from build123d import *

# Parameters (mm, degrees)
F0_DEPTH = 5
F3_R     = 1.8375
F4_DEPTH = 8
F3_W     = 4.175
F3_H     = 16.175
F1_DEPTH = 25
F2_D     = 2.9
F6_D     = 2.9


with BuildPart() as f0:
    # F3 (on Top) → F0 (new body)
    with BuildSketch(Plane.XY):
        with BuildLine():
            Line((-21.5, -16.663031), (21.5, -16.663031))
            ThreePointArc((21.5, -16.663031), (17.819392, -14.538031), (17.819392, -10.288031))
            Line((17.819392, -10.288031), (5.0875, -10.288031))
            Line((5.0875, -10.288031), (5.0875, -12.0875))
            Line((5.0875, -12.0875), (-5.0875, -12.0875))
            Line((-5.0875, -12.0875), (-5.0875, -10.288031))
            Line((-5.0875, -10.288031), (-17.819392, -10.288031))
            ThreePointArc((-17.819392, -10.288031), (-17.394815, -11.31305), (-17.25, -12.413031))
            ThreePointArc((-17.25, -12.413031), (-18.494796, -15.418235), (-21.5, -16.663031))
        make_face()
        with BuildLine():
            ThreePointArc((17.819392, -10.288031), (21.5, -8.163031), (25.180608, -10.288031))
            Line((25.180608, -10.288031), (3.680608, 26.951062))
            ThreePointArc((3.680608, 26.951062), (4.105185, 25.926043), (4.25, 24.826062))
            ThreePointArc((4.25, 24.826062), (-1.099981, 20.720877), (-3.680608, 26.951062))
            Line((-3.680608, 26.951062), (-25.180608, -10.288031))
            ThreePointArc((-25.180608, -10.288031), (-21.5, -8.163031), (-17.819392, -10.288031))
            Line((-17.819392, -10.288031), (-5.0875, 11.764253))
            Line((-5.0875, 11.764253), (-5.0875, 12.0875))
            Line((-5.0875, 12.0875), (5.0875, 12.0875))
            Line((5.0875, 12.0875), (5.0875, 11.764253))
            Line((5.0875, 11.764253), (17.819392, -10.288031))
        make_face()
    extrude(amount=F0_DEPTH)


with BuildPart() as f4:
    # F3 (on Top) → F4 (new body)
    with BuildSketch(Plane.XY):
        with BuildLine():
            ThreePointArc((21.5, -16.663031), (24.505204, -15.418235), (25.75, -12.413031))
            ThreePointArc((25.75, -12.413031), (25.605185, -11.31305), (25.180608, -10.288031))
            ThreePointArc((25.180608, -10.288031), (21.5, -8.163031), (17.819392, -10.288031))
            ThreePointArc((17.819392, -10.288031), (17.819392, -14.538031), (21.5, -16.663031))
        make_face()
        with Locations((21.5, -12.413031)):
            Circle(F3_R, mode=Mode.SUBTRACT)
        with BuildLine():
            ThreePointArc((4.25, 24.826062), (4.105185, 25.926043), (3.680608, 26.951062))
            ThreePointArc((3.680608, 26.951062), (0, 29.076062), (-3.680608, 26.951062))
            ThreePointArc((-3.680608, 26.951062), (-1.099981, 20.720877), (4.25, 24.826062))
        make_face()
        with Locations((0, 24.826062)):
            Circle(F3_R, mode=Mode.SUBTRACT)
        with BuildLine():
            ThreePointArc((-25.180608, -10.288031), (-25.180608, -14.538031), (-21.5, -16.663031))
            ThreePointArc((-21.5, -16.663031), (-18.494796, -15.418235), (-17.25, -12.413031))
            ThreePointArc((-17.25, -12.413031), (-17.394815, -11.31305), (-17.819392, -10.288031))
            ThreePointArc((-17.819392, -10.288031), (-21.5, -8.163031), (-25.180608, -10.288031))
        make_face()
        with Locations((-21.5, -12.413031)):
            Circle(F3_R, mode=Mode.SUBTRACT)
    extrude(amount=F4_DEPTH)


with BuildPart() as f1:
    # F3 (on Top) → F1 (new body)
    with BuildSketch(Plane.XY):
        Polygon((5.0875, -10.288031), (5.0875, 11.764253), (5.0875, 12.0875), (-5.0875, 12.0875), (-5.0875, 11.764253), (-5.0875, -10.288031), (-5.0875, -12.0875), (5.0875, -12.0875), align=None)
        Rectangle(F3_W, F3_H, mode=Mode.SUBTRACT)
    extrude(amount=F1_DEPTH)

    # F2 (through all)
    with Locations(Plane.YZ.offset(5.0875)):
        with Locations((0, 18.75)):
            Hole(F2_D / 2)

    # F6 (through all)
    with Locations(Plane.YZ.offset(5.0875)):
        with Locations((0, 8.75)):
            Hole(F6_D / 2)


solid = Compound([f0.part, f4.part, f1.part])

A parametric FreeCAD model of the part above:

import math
import FreeCAD as App
import Part
import Sketcher

V = App.Vector
Q = App.Units.Quantity


def add_polygon(sketch, points):
    """Adds a closed chain of lines whose ends are joined by coincident constraints."""
    first, n = sketch.GeometryCount, len(points)
    for a, b in zip(points, points[1:] + points[:1]):
        sketch.addGeometry(Part.LineSegment(App.Vector(*a, 0), App.Vector(*b, 0)), False)
    for i in range(n):
        sketch.addConstraint(Sketcher.Constraint("Coincident", first + i, 2, first + (i + 1) % n, 1))

doc = App.newDocument("Part")
body = doc.addObject("PartDesign::Body", "Body")
body.AllowCompound = True

# Sketch on XY plane
sketch1 = body.newObject("Sketcher::SketchObject", "Sketch")
sketch1.AttachmentSupport = (doc.getObject("XY_Plane"), [""])
sketch1.MapMode = "FlatFace"
sketch1.addGeometry(Part.LineSegment(V(-21.5, -16.66, 0), V(21.5, -16.66, 0)), False)
sketch1.addGeometry(Part.ArcOfCircle(Part.Circle(V(21.5, -12.41, 0), V(0, 0, 1), 4.25), math.radians(150), math.radians(270)), False)
sketch1.addGeometry(Part.LineSegment(V(17.82, -10.29, 0), V(5.09, -10.29, 0)), False)
sketch1.addGeometry(Part.LineSegment(V(5.09, -10.29, 0), V(5.09, -12.09, 0)), False)
sketch1.addGeometry(Part.LineSegment(V(5.09, -12.09, 0), V(-5.09, -12.09, 0)), False)
sketch1.addGeometry(Part.LineSegment(V(-5.09, -12.09, 0), V(-5.09, -10.29, 0)), False)
sketch1.addGeometry(Part.LineSegment(V(-5.09, -10.29, 0), V(-17.82, -10.29, 0)), False)
sketch1.addGeometry(Part.ArcOfCircle(Part.Circle(V(-21.5, -12.41, 0), V(0, 0, 1), 4.25), math.radians(0), math.radians(30)), False)
sketch1.addGeometry(Part.ArcOfCircle(Part.Circle(V(-21.5, -12.41, 0), V(0, 0, 1), 4.25), math.radians(-90), math.radians(0)), False)
sketch1.addGeometry(Part.ArcOfCircle(Part.Circle(V(21.5, -12.41, 0), V(0, 0, 1), 4.25), math.radians(30), math.radians(150)), False)
sketch1.addGeometry(Part.LineSegment(V(25.18, -10.29, 0), V(3.68, 26.95, 0)), False)
sketch1.addGeometry(Part.ArcOfCircle(Part.Circle(V(0, 24.83, 0), V(0, 0, 1), 4.25), math.radians(0), math.radians(30)), False)
sketch1.addGeometry(Part.ArcOfCircle(Part.Circle(V(0, 24.83, 0), V(0, 0, 1), 4.25), math.radians(150), math.radians(360)), False)
sketch1.addGeometry(Part.LineSegment(V(-3.68, 26.95, 0), V(-25.18, -10.29, 0)), False)
sketch1.addGeometry(Part.ArcOfCircle(Part.Circle(V(-21.5, -12.41, 0), V(0, 0, 1), 4.25), math.radians(30), math.radians(150)), False)
sketch1.addGeometry(Part.LineSegment(V(-17.82, -10.29, 0), V(-5.09, 11.76, 0)), False)
sketch1.addGeometry(Part.LineSegment(V(-5.09, 11.76, 0), V(-5.09, 12.09, 0)), False)
sketch1.addGeometry(Part.LineSegment(V(-5.09, 12.09, 0), V(5.09, 12.09, 0)), False)
sketch1.addGeometry(Part.LineSegment(V(5.09, 12.09, 0), V(5.09, 11.76, 0)), False)
sketch1.addGeometry(Part.LineSegment(V(5.09, 11.76, 0), V(17.82, -10.29, 0)), False)
sketch1.addConstraint(Sketcher.Constraint("Tangent", 0, 2, 1, 2))
sketch1.addConstraint(Sketcher.Constraint("Coincident", 1, 1, 2, 1))
sketch1.addConstraint(Sketcher.Constraint("Coincident", 2, 2, 3, 1))
sketch1.addConstraint(Sketcher.Constraint("Coincident", 3, 2, 4, 1))
sketch1.addConstraint(Sketcher.Constraint("Coincident", 4, 2, 5, 1))
sketch1.addConstraint(Sketcher.Constraint("Coincident", 5, 2, 6, 1))
sketch1.addConstraint(Sketcher.Constraint("Coincident", 6, 2, 7, 2))
sketch1.addConstraint(Sketcher.Constraint("Tangent", 7, 1, 8, 2))
sketch1.addConstraint(Sketcher.Constraint("Tangent", 8, 1, 0, 1))
sketch1.addConstraint(Sketcher.Constraint("Tangent", 9, 1, 10, 1))
sketch1.addConstraint(Sketcher.Constraint("Tangent", 10, 2, 11, 2))
sketch1.addConstraint(Sketcher.Constraint("Tangent", 11, 1, 12, 2))
sketch1.addConstraint(Sketcher.Constraint("Tangent", 12, 1, 13, 1))
sketch1.addConstraint(Sketcher.Constraint("Tangent", 13, 2, 14, 2))
sketch1.addConstraint(Sketcher.Constraint("Coincident", 14, 1, 15, 1))
sketch1.addConstraint(Sketcher.Constraint("Coincident", 15, 2, 16, 1))
sketch1.addConstraint(Sketcher.Constraint("Coincident", 16, 2, 17, 1))
sketch1.addConstraint(Sketcher.Constraint("Coincident", 17, 2, 18, 1))
sketch1.addConstraint(Sketcher.Constraint("Coincident", 18, 2, 19, 1))
sketch1.addConstraint(Sketcher.Constraint("Coincident", 19, 2, 9, 2))
sketch1.addConstraint(Sketcher.Constraint("Horizontal", 0))
sketch1.addConstraint(Sketcher.Constraint("Horizontal", 2))
sketch1.addConstraint(Sketcher.Constraint("Vertical", 3))
sketch1.addConstraint(Sketcher.Constraint("Horizontal", 4))
sketch1.addConstraint(Sketcher.Constraint("Vertical", 5))
sketch1.addConstraint(Sketcher.Constraint("Horizontal", 6))
sketch1.addConstraint(Sketcher.Constraint("Vertical", 16))
sketch1.addConstraint(Sketcher.Constraint("Horizontal", 17))
sketch1.addConstraint(Sketcher.Constraint("Vertical", 18))
sketch1.addConstraint(Sketcher.Constraint("Coincident", 9, 3, 1, 3))
sketch1.addConstraint(Sketcher.Constraint("Coincident", 14, 3, 7, 3))
sketch1.addConstraint(Sketcher.Constraint("Coincident", 14, 1, 6, 2))
sketch1.addConstraint(Sketcher.Constraint("Coincident", 19, 2, 1, 1))
sketch1.addConstraint(Sketcher.Constraint("Equal", 1, 8))
sketch1.addConstraint(Sketcher.Constraint("Equal", 7, 11))
sketch1.addConstraint(Sketcher.Constraint("Equal", 9, 12))
sketch1.addConstraint(Sketcher.Constraint("Equal", 12, 14))
sketch1.addConstraint(Sketcher.Constraint("Symmetric", 3, 2, 16, 2, -1, 1))
sketch1.addConstraint(Sketcher.Constraint("Symmetric", 2, 2, 5, 2, -2))
sketch1.addConstraint(Sketcher.Constraint("Symmetric", 10, 2, 12, 1, -2))
sketch1.addConstraint(Sketcher.Constraint("Symmetric", 15, 2, 18, 2, -2))
sketch1.addConstraint(Sketcher.Constraint("Parallel", 13, 15))
sketch1.addConstraint(Sketcher.Constraint("Horizontal", 14, 3, 7, 1))
sketch1.addConstraint(Sketcher.Constraint("Horizontal", 6, 2, 9, 1))
sketch1.addConstraint(Sketcher.Constraint("Horizontal", 12, 3, 11, 1))
sketch1.addConstraint(Sketcher.Constraint("DistanceX", 0, 1, 0, 2, Q("43 mm")))
sketch1.addConstraint(Sketcher.Constraint("Angle", 10, Q("120 deg")))
sketch1.addConstraint(Sketcher.Constraint("Radius", 1, Q("4.25 mm")))
sketch1.addConstraint(Sketcher.Constraint("DistanceX", 4, 2, 4, 1, Q("10.175 mm")))
sketch1.addConstraint(Sketcher.Constraint("DistanceY", 3, 2, 3, 1, Q("1.799469 mm")))
sketch1.addConstraint(Sketcher.Constraint("DistanceY", 3, 2, -1, 1, Q("12.0875 mm")))
pad1 = body.newObject("PartDesign::Pad", "Pad")
pad1.Profile = sketch1
pad1.Length = 5
body2 = doc.addObject("PartDesign::Body", "Body001")
body2.AllowCompound = True

# Sketch on XY plane
sketch2 = body2.newObject("Sketcher::SketchObject", "Sketch001")
sketch2.AttachmentSupport = (doc.getObject("XY_Plane001"), [""])
sketch2.MapMode = "FlatFace"
sketch2.addGeometry(Part.ArcOfCircle(Part.Circle(V(21.5, -12.4, 0), V(0, 0, 1), 4.2), math.radians(-90), math.radians(0)), False)
sketch2.addGeometry(Part.ArcOfCircle(Part.Circle(V(21.5, -12.4, 0), V(0, 0, 1), 4.2), math.radians(0), math.radians(30)), False)
sketch2.addGeometry(Part.ArcOfCircle(Part.Circle(V(21.5, -12.4, 0), V(0, 0, 1), 4.3), math.radians(30), math.radians(150)), False)
sketch2.addGeometry(Part.ArcOfCircle(Part.Circle(V(21.5, -12.4, 0), V(0, 0, 1), 4.2), math.radians(150), math.radians(270)), False)
sketch2.addGeometry(Part.Circle(V(21.5, -12.4, 0), V(0, 0, 1), 1.8), False)
sketch2.addGeometry(Part.ArcOfCircle(Part.Circle(V(0, 24.8, 0), V(0, 0, 1), 4.2), math.radians(0), math.radians(30)), False)
sketch2.addGeometry(Part.ArcOfCircle(Part.Circle(V(0, 24.8, 0), V(0, 0, 1), 4.3), math.radians(30), math.radians(150)), False)
sketch2.addGeometry(Part.ArcOfCircle(Part.Circle(V(0, 24.8, 0), V(0, 0, 1), 4.3), math.radians(150), math.radians(360)), False)
sketch2.addGeometry(Part.Circle(V(0, 24.8, 0), V(0, 0, 1), 1.8), False)
sketch2.addGeometry(Part.ArcOfCircle(Part.Circle(V(-21.5, -12.4, 0), V(0, 0, 1), 4.2), math.radians(150), math.radians(270)), False)
sketch2.addGeometry(Part.ArcOfCircle(Part.Circle(V(-21.5, -12.4, 0), V(0, 0, 1), 4.2), math.radians(-90), math.radians(0)), False)
sketch2.addGeometry(Part.ArcOfCircle(Part.Circle(V(-21.5, -12.4, 0), V(0, 0, 1), 4.2), math.radians(0), math.radians(30)), False)
sketch2.addGeometry(Part.ArcOfCircle(Part.Circle(V(-21.5, -12.4, 0), V(0, 0, 1), 4.3), math.radians(30), math.radians(150)), False)
sketch2.addGeometry(Part.Circle(V(-21.5, -12.4, 0), V(0, 0, 1), 1.8), False)
sketch2.addConstraint(Sketcher.Constraint("Tangent", 0, 2, 1, 1))
sketch2.addConstraint(Sketcher.Constraint("Tangent", 1, 2, 2, 1))
sketch2.addConstraint(Sketcher.Constraint("Tangent", 2, 2, 3, 1))
sketch2.addConstraint(Sketcher.Constraint("Tangent", 3, 2, 0, 1))
sketch2.addConstraint(Sketcher.Constraint("Tangent", 5, 2, 6, 1))
sketch2.addConstraint(Sketcher.Constraint("Tangent", 6, 2, 7, 1))
sketch2.addConstraint(Sketcher.Constraint("Tangent", 7, 2, 5, 1))
sketch2.addConstraint(Sketcher.Constraint("Tangent", 9, 2, 10, 1))
sketch2.addConstraint(Sketcher.Constraint("Tangent", 10, 2, 11, 1))
sketch2.addConstraint(Sketcher.Constraint("Tangent", 11, 2, 12, 1))
sketch2.addConstraint(Sketcher.Constraint("Tangent", 12, 2, 9, 1))
sketch2.addConstraint(Sketcher.Constraint("Coincident", 4, 3, 0, 3))
sketch2.addConstraint(Sketcher.Constraint("Coincident", 8, 3, 5, 3))
sketch2.addConstraint(Sketcher.Constraint("Coincident", 13, 3, 9, 3))
sketch2.addConstraint(Sketcher.Constraint("Equal", 0, 2))
sketch2.addConstraint(Sketcher.Constraint("Equal", 1, 5))
sketch2.addConstraint(Sketcher.Constraint("Equal", 4, 8))
sketch2.addConstraint(Sketcher.Constraint("Equal", 7, 9))
sketch2.addConstraint(Sketcher.Constraint("Equal", 9, 10))
sketch2.addConstraint(Sketcher.Constraint("Equal", 8, 13))
sketch2.addConstraint(Sketcher.Constraint("Symmetric", 0, 3, 9, 3, -2))
sketch2.addConstraint(Sketcher.Constraint("Symmetric", 5, 2, 6, 2, -2))
sketch2.addConstraint(Sketcher.Constraint("Horizontal", 13, 3, 0, 2))
sketch2.addConstraint(Sketcher.Constraint("Horizontal", 1, 2, 2, 2))
sketch2.addConstraint(Sketcher.Constraint("Horizontal", 8, 3, 7, 2))
sketch2.addConstraint(Sketcher.Constraint("Horizontal", 0, 2, 10, 2))
sketch2.addConstraint(Sketcher.Constraint("Horizontal", 2, 2, 11, 2))
sketch2.addConstraint(Sketcher.Constraint("Horizontal", 11, 2, 12, 2))
sketch2.addConstraint(Sketcher.Constraint("Vertical", 4, 3, 3, 2))
sketch2.addConstraint(Sketcher.Constraint("Vertical", 13, 3, 9, 2))
sketch2.addConstraint(Sketcher.Constraint("Radius", 0, Q("4.249999 mm")))
sketch2.addConstraint(Sketcher.Constraint("Diameter", 4, Q("3.675 mm")))
sketch2.addConstraint(Sketcher.Constraint("DistanceX", 9, 3, 3, 3, Q("43 mm")))
sketch2.addConstraint(Sketcher.Constraint("DistanceY", 0, 2, 1, 2, Q("2.125 mm")))
sketch2.addConstraint(Sketcher.Constraint("DistanceY", 5, 3, 5, 2, Q("2.124998 mm")))
sketch2.addConstraint(Sketcher.Constraint("DistanceY", 0, 3, -1, 1, Q("12.413032 mm")))
sketch2.addConstraint(Sketcher.Constraint("DistanceY", -1, 1, 6, 3, Q("24.826062 mm")))
pad2 = body2.newObject("PartDesign::Pad", "Pad001")
pad2.Profile = sketch2
pad2.Length = 8
body3 = doc.addObject("PartDesign::Body", "Body002")

# Sketch on XY plane
sketch3 = body3.newObject("Sketcher::SketchObject", "Sketch002")
sketch3.AttachmentSupport = (doc.getObject("XY_Plane002"), [""])
sketch3.MapMode = "FlatFace"
add_polygon(sketch3, [(5.1, 12.1), (-5.1, 12.1), (-5.1, -12.1), (5.1, -12.1)])  # lines 0-3
add_polygon(sketch3, [(2.1, -8.1), (-2.1, -8.1), (-2.1, 8.1), (2.1, 8.1)])  # lines 4-7
sketch3.addConstraint(Sketcher.Constraint("Horizontal", 0))
sketch3.addConstraint(Sketcher.Constraint("Vertical", 1))
sketch3.addConstraint(Sketcher.Constraint("Horizontal", 2))
sketch3.addConstraint(Sketcher.Constraint("Vertical", 3))
sketch3.addConstraint(Sketcher.Constraint("Horizontal", 4))
sketch3.addConstraint(Sketcher.Constraint("Vertical", 5))
sketch3.addConstraint(Sketcher.Constraint("Horizontal", 6))
sketch3.addConstraint(Sketcher.Constraint("Vertical", 7))
sketch3.addConstraint(Sketcher.Constraint("Symmetric", 0, 2, 2, 2, -1, 1))
sketch3.addConstraint(Sketcher.Constraint("Symmetric", 4, 2, 6, 2, -1, 1))
sketch3.addConstraint(Sketcher.Constraint("DistanceX", 1, 2, 4, 2, Q("3 mm")))
sketch3.addConstraint(Sketcher.Constraint("DistanceY", 1, 2, 4, 2, Q("4 mm")))
sketch3.addConstraint(Sketcher.Constraint("DistanceX", 0, 2, 0, 1, Q("10.175 mm")))
sketch3.addConstraint(Sketcher.Constraint("DistanceY", 1, 2, 1, 1, Q("24.175 mm")))
pad3 = body3.newObject("PartDesign::Pad", "Pad002")
pad3.Profile = sketch3
pad3.Length = 25

# Sketch on YZ plane
sketch4 = body3.newObject("Sketcher::SketchObject", "Sketch003")
sketch4.AttachmentSupport = (doc.getObject("YZ_Plane002"), [""])
sketch4.MapMode = "FlatFace"
sketch4.AttachmentOffset = App.Placement(V(0, 0, 5.0875), App.Rotation())
sketch4.addGeometry(Part.Circle(V(0, 18.8, 0), V(0, 0, 1), 1.4), False)
sketch4.addConstraint(Sketcher.Constraint("PointOnObject", 0, 3, -2))
sketch4.addConstraint(Sketcher.Constraint("Diameter", 0, Q("2.9 mm")))
sketch4.addConstraint(Sketcher.Constraint("DistanceY", -1, 1, 0, 3, Q("18.75 mm")))
doc.recompute()
hole = body3.newObject("PartDesign::Hole", "Hole")
hole.Profile = sketch4
hole.ThreadType = "None"
hole.Diameter = 2.9
hole.DepthType = "ThroughAll"

# Sketch on YZ plane
sketch5 = body3.newObject("Sketcher::SketchObject", "Sketch004")
sketch5.AttachmentSupport = (doc.getObject("YZ_Plane002"), [""])
sketch5.MapMode = "FlatFace"
sketch5.AttachmentOffset = App.Placement(V(0, 0, 5.0875), App.Rotation())
sketch5.addGeometry(Part.Circle(V(0, 8.8, 0), V(0, 0, 1), 1.4), False)
sketch5.addConstraint(Sketcher.Constraint("PointOnObject", 0, 3, -2))
sketch5.addConstraint(Sketcher.Constraint("Diameter", 0, Q("2.9 mm")))
sketch5.addConstraint(Sketcher.Constraint("DistanceY", -1, 1, 0, 3, Q("8.75 mm")))
doc.recompute()
hole2 = body3.newObject("PartDesign::Hole", "Hole001")
hole2.Profile = sketch5
hole2.ThreadType = "None"
hole2.Diameter = 2.9
hole2.DepthType = "ThroughAll"

doc.recompute()
